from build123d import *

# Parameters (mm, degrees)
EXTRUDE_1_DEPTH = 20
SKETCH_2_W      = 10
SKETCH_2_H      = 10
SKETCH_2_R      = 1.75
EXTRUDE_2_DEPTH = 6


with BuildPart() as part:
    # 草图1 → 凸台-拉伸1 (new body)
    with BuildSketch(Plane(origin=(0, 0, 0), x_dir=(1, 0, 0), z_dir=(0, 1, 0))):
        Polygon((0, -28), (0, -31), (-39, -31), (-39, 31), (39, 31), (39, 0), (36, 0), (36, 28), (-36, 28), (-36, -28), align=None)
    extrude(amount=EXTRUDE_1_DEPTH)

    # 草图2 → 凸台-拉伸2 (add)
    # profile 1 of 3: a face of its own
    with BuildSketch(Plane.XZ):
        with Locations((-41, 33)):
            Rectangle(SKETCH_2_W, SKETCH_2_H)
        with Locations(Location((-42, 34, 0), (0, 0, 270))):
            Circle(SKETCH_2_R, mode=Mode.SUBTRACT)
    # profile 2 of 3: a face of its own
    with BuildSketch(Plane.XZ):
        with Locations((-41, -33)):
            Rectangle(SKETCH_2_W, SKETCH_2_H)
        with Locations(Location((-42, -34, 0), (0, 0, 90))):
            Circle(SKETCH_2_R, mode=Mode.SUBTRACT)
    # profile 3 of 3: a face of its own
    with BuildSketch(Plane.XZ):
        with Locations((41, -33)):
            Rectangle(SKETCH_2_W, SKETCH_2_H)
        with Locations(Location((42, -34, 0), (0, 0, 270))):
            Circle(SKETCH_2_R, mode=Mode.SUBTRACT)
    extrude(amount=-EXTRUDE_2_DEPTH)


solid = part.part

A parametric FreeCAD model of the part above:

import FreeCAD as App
import Part
import Sketcher

V = App.Vector


def add_polygon(sketch, points):
    """Adds a closed chain of lines whose ends are joined by coincident constraints."""
    first, n = sketch.GeometryCount, len(points)
    for a, b in zip(points, points[1:] + points[:1]):
        sketch.addGeometry(Part.LineSegment(App.Vector(*a, 0), App.Vector(*b, 0)), False)
    for i in range(n):
        sketch.addConstraint(Sketcher.Constraint("Coincident", first + i, 2, first + (i + 1) % n, 1))

doc = App.newDocument("Part")
body = doc.addObject("PartDesign::Body", "Body")

sketch1 = body.newObject("Sketcher::SketchObject", "Sketch")
sketch1.AttachmentSupport = (doc.getObject("XZ_Plane"), [""])
sketch1.MapMode = "FlatFace"
add_polygon(sketch1, [(0, 31), (0, 28), (-36, 28), (-36, -28), (36, -28), (36, 0), (39, 0), (39, -31), (-39, -31), (-39, 31)])
sketch1.addConstraint(Sketcher.Constraint("Vertical", 0))
sketch1.addConstraint(Sketcher.Constraint("Horizontal", 1))
sketch1.addConstraint(Sketcher.Constraint("Vertical", 2))
sketch1.addConstraint(Sketcher.Constraint("Horizontal", 3))
sketch1.addConstraint(Sketcher.Constraint("Vertical", 4))
sketch1.addConstraint(Sketcher.Constraint("Horizontal", 5))
sketch1.addConstraint(Sketcher.Constraint("Vertical", 6))
sketch1.addConstraint(Sketcher.Constraint("Horizontal", 7))
sketch1.addConstraint(Sketcher.Constraint("Vertical", 8))
sketch1.addConstraint(Sketcher.Constraint("Horizontal", 9))
sketch1.addConstraint(Sketcher.Constraint("Symmetric", 1, 2, 3, 2, -1, 1))
sketch1.addConstraint(Sketcher.Constraint("Symmetric", 6, 2, 8, 2, -1, 1))
sketch1.addConstraint(Sketcher.Constraint("PointOnObject", 0, 2, -2))
sketch1.addConstraint(Sketcher.Constraint("PointOnObject", 4, 2, -1))
sketch1.addConstraint(Sketcher.Constraint("Equal", 5, 0))
sketch1.addConstraint(Sketcher.Constraint("DistanceX", 1, 2, 1, 1, 36.0))
sketch1.addConstraint(Sketcher.Constraint("DistanceX", 5, 1, 5, 2, 3.0))
sketch1.addConstraint(Sketcher.Constraint("DistanceY", 2, 2, 2, 1, 56.0))
pad1 = body.newObject("PartDesign::Pad", "Pad")
pad1.Profile = sketch1
pad1.Length = 20
pad1.Reversed = True

sketch2 = body.newObject("Sketcher::SketchObject", "Sketch001")
sketch2.AttachmentSupport = (doc.getObject("XZ_Plane"), [""])
sketch2.MapMode = "FlatFace"
add_polygon(sketch2, [(-46, 38), (-46, 28), (-36, 28), (-36, 38)])
sketch2.addGeometry(Part.Circle(V(-42, 34, 0), V(0, 0, 1), 1.8), False)
add_polygon(sketch2, [(-46, -28), (-46, -38), (-36, -38), (-36, -28)])
sketch2.addGeometry(Part.Circle(V(-42, -34, 0), V(0, 0, 1), 1.8), False)
add_polygon(sketch2, [(36, -28), (36, -38), (46, -38), (46, -28)])
sketch2.addGeometry(Part.Circle(V(42, -34, 0), V(0, 0, 1), 1.8), False)
sketch2.addConstraint(Sketcher.Constraint("Vertical", 0))
sketch2.addConstraint(Sketcher.Constraint("Horizontal", 1))
sketch2.addConstraint(Sketcher.Constraint("Vertical", 2))
sketch2.addConstraint(Sketcher.Constraint("Horizontal", 3))
sketch2.addConstraint(Sketcher.Constraint("Vertical", 5))
sketch2.addConstraint(Sketcher.Constraint("Horizontal", 6))
sketch2.addConstraint(Sketcher.Constraint("Vertical", 7))
sketch2.addConstraint(Sketcher.Constraint("Horizontal", 8))
sketch2.addConstraint(Sketcher.Constraint("Vertical", 10))
sketch2.addConstraint(Sketcher.Constraint("Horizontal", 11))
sketch2.addConstraint(Sketcher.Constraint("Vertical", 12))
sketch2.addConstraint(Sketcher.Constraint("Horizontal", 13))
sketch2.addConstraint(Sketcher.Constraint("Equal", 4, 9))
sketch2.addConstraint(Sketcher.Constraint("Equal", 9, 14))
sketch2.addConstraint(Sketcher.Constraint("Symmetric", 4, 3, 14, 3, -1, 1))
sketch2.addConstraint(Sketcher.Constraint("Symmetric", 2, 2, 10, 2, -1, 1))
sketch2.addConstraint(Sketcher.Constraint("Symmetric", 0, 2, 12, 2, -1, 1))
sketch2.addConstraint(Sketcher.Constraint("Symmetric", 9, 3, 14, 3, -2))
sketch2.addConstraint(Sketcher.Constraint("Symmetric", 6, 2, 10, 2, -2))
sketch2.addConstraint(Sketcher.Constraint("Symmetric", 8, 2, 12, 2, -2))
sketch2.addConstraint(Sketcher.Constraint("Equal", 13, 0))
sketch2.addConstraint(Sketcher.Constraint("Diameter", 4, 3.5))
sketch2.addConstraint(Sketcher.Constraint("DistanceX", 1, 1, 1, 2, 10.0))
sketch2.addConstraint(Sketcher.Constraint("DistanceX", 4, 3, -1, 1, 42.0))
sketch2.addConstraint(Sketcher.Constraint("DistanceY", -1, 1, 4, 3, 34.0))
sketch2.addConstraint(Sketcher.Constraint("DistanceX", 0, 2, -1, 1, 46.0))
sketch2.addConstraint(Sketcher.Constraint("DistanceY", -1, 1, 0, 2, 28.0))
pad2 = body.newObject("PartDesign::Pad", "Pad001")
pad2.Profile = sketch2
pad2.Length = 6
pad2.Reversed = True

doc.recompute()
